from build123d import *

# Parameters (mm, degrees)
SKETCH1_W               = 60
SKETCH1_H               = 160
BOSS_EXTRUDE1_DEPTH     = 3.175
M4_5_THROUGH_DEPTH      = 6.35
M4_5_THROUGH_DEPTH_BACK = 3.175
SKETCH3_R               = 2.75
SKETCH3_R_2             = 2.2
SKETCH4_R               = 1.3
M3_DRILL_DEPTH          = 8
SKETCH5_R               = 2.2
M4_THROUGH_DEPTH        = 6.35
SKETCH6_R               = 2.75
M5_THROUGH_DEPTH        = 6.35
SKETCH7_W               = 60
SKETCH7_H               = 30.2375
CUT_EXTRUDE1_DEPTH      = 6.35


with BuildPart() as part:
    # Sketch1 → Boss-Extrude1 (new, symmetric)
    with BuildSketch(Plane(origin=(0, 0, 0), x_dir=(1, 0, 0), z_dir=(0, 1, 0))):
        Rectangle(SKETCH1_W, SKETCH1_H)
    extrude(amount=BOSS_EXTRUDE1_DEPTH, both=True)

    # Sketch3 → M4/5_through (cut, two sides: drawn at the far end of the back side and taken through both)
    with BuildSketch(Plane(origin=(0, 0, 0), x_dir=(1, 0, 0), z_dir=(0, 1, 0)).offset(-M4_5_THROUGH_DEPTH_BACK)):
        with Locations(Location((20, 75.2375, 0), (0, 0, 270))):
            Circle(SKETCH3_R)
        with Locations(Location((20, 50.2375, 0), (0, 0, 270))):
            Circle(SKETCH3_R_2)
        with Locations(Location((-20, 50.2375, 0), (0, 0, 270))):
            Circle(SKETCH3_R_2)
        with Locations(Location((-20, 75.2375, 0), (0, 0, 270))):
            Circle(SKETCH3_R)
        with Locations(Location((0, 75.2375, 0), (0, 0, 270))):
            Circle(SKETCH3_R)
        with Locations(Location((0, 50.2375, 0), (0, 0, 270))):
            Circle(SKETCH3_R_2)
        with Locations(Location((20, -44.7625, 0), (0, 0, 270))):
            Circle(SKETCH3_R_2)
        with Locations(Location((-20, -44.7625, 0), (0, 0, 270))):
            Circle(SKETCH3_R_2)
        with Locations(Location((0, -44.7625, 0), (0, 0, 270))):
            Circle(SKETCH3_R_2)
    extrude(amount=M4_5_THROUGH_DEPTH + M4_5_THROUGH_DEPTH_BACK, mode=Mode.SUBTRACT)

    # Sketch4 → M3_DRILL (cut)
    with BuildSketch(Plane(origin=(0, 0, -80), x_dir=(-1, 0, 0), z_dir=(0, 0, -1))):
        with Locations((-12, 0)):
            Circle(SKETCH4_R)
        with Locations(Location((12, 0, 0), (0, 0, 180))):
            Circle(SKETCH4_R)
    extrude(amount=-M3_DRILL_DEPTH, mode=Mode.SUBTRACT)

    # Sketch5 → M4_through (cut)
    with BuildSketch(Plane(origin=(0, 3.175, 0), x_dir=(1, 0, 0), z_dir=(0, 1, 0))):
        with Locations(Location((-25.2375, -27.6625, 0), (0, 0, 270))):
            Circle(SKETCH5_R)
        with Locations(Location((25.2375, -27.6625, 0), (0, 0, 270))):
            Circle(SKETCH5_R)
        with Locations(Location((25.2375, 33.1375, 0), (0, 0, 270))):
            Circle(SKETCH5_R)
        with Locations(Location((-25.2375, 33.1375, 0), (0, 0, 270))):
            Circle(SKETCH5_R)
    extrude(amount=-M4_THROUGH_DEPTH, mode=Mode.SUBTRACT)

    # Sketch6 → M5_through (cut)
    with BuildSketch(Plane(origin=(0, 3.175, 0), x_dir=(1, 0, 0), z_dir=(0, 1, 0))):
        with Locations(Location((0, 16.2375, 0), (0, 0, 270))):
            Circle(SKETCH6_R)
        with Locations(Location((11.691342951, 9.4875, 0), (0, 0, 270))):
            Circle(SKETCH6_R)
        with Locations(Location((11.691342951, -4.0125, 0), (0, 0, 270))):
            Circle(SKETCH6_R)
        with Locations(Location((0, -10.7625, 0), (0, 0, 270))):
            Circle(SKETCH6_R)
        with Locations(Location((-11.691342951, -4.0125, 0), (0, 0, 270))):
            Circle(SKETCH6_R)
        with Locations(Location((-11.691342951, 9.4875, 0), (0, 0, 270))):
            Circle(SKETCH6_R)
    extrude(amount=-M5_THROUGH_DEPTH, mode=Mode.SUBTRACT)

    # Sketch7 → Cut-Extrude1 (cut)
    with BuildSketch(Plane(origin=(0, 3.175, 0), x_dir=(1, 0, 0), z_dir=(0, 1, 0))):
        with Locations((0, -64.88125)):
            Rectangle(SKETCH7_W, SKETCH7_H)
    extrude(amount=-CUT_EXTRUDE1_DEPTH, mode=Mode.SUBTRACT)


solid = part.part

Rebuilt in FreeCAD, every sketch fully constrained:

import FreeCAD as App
import Part
import Sketcher
from FreeCAD import Vector
Q = App.Units.Quantity


def add_polygon(sketch, points):
    """Adds a closed chain of lines whose ends are joined by coincident constraints."""
    first, n = sketch.GeometryCount, len(points)
    for a, b in zip(points, points[1:] + points[:1]):
        sketch.addGeometry(Part.LineSegment(App.Vector(*a, 0), App.Vector(*b, 0)), False)
    for i in range(n):
        sketch.addConstraint(Sketcher.Constraint("Coincident", first + i, 2, first + (i + 1) % n, 1))

doc = App.newDocument("Part")
body = doc.addObject("PartDesign::Body", "Body")

# Sketch on XZ plane
sketch1 = body.newObject("Sketcher::SketchObject", "Sketch")
sketch1.AttachmentSupport = (doc.getObject("XZ_Plane"), [""])
sketch1.MapMode = "FlatFace"
add_polygon(sketch1, [(-30, -80), (-30, 80), (30, 80), (30, -80)])  # lines 0-3
sketch1.addConstraint([
    Sketcher.Constraint("Vertical", 0),
    Sketcher.Constraint("Horizontal", 1),
    Sketcher.Constraint("Vertical", 2),
    Sketcher.Constraint("Horizontal", 3),
    Sketcher.Constraint("Symmetric", 0, 2, 2, 2, -1, 1),
    Sketcher.Constraint("DistanceX", 1, 1, 1, 2, Q("60 mm")),
    Sketcher.Constraint("DistanceY", 0, 1, 0, 2, Q("160 mm")),
])
pad1 = body.newObject("PartDesign::Pad", "Pad")
pad1.Profile = sketch1
pad1.Length = 6.35
pad1.Midplane = True

# Sketch on XZ plane
sketch2 = body.newObject("Sketcher::SketchObject", "Sketch001")
sketch2.AttachmentSupport = (doc.getObject("XZ_Plane"), [""])
sketch2.MapMode = "FlatFace"
sketch2.addGeometry([
    Part.Circle(Vector(20, -75.2, 0), Vector(0, 0, 1), 2.8),  # 0
    Part.Circle(Vector(20, -50.2, 0), Vector(0, 0, 1), 2.2),  # 1
    Part.Circle(Vector(-20, -50.2, 0), Vector(0, 0, 1), 2.2),  # 2
    Part.Circle(Vector(-20, -75.2, 0), Vector(0, 0, 1), 2.8),  # 3
    Part.Circle(Vector(0, -75.2, 0), Vector(0, 0, 1), 2.8),  # 4
    Part.Circle(Vector(0, -50.2, 0), Vector(0, 0, 1), 2.2),  # 5
    Part.Circle(Vector(20, 44.8, 0), Vector(0, 0, 1), 2.2),  # 6
    Part.Circle(Vector(-20, 44.8, 0), Vector(0, 0, 1), 2.2),  # 7
    Part.Circle(Vector(0, 44.8, 0), Vector(0, 0, 1), 2.2),  # 8
], False)
sketch2.addConstraint([
    Sketcher.Constraint("Equal", 1, 2),
    Sketcher.Constraint("Equal", 0, 3),
    Sketcher.Constraint("Equal", 3, 4),
    Sketcher.Constraint("Equal", 2, 5),
    Sketcher.Constraint("Equal", 5, 6),
    Sketcher.Constraint("Equal", 6, 7),
    Sketcher.Constraint("Equal", 7, 8),
    Sketcher.Constraint("Symmetric", 1, 3, 2, 3, -2),
    Sketcher.Constraint("Symmetric", 0, 3, 3, 3, -2),
    Sketcher.Constraint("Symmetric", 6, 3, 7, 3, -2),
    Sketcher.Constraint("PointOnObject", 4, 3, -2),
    Sketcher.Constraint("PointOnObject", 5, 3, -2),
    Sketcher.Constraint("PointOnObject", 8, 3, -2),
    Sketcher.Constraint("Horizontal", 3, 3, 4, 3),
    Sketcher.Constraint("Horizontal", 2, 3, 5, 3),
    Sketcher.Constraint("Horizontal", 7, 3, 8, 3),
    Sketcher.Constraint("Vertical", 0, 3, 1, 3),
    Sketcher.Constraint("Vertical", 1, 3, 6, 3),
    Sketcher.Constraint("Diameter", 0, Q("5.5 mm")),
    Sketcher.Constraint("Diameter", 1, Q("4.4 mm")),
    Sketcher.Constraint("DistanceX", -1, 1, 0, 3, Q("20 mm")),
    Sketcher.Constraint("DistanceY", 0, 3, 1, 3, Q("25 mm")),
    Sketcher.Constraint("DistanceY", 1, 3, 6, 3, Q("95 mm")),
    Sketcher.Constraint("DistanceY", 0, 3, -1, 1, Q("75.2375 mm")),
])
pocket1 = body.newObject("PartDesign::Pocket", "Pocket")
pocket1.Profile = sketch2
pocket1.Type = "ThroughAll"
pocket1.Midplane = True

# Sketch on XY plane
sketch3 = body.newObject("Sketcher::SketchObject", "Sketch002")
sketch3.AttachmentSupport = (doc.getObject("XY_Plane"), [""])
sketch3.MapMode = "FlatFace"
sketch3.AttachmentOffset = App.Placement(Vector(0, 0, -80), App.Rotation())
sketch3.addGeometry([
    Part.Circle(Vector(12, 0, 0), Vector(0, 0, 1), 1.3),
    Part.Circle(Vector(-12, 0, 0), Vector(0, 0, 1), 1.3),
], False)
sketch3.addConstraint([
    Sketcher.Constraint("Equal", 0, 1),
    Sketcher.Constraint("Symmetric", 0, 3, 1, 3, -1, 1),
    Sketcher.Constraint("PointOnObject", 0, 3, -1),
    Sketcher.Constraint("Diameter", 0, Q("2.6 mm")),
    Sketcher.Constraint("DistanceX", -1, 1, 0, 3, Q("12 mm")),
])
pocket2 = body.newObject("PartDesign::Pocket", "Pocket001")
pocket2.Profile = sketch3
pocket2.Length = 8
pocket2.Reversed = True

# Sketch on XZ plane
sketch4 = body.newObject("Sketcher::SketchObject", "Sketch003")
sketch4.AttachmentSupport = (doc.getObject("XZ_Plane"), [""])
sketch4.MapMode = "FlatFace"
sketch4.AttachmentOffset = App.Placement(Vector(0, 0, -3.175), App.Rotation())
sketch4.addGeometry([
    Part.Circle(Vector(-25.2, 27.7, 0), Vector(0, 0, 1), 2.2),
    Part.Circle(Vector(25.2, 27.7, 0), Vector(0, 0, 1), 2.2),
    Part.Circle(Vector(25.2, -33.1, 0), Vector(0, 0, 1), 2.2),
    Part.Circle(Vector(-25.2, -33.1, 0), Vector(0, 0, 1), 2.2),
], False)
sketch4.addConstraint([
    Sketcher.Constraint("Equal", 0, 1),
    Sketcher.Constraint("Equal", 1, 2),
    Sketcher.Constraint("Equal", 2, 3),
    Sketcher.Constraint("Symmetric", 0, 3, 1, 3, -2),
    Sketcher.Constraint("Symmetric", 2, 3, 3, 3, -2),
    Sketcher.Constraint("Vertical", 1, 3, 2, 3),
    Sketcher.Constraint("Diameter", 0, Q("4.4 mm")),
    Sketcher.Constraint("DistanceY", 2, 3, 1, 3, Q("60.8 mm")),
    Sketcher.Constraint("DistanceX", 0, 3, 1, 3, Q("50.475 mm")),
    Sketcher.Constraint("DistanceY", -1, 1, 0, 3, Q("27.6625 mm")),
])
pocket3 = body.newObject("PartDesign::Pocket", "Pocket002")
pocket3.Profile = sketch4
pocket3.Length = 6.35
pocket3.Reversed = True

# Sketch on XZ plane
sketch5 = body.newObject("Sketcher::SketchObject", "Sketch004")
sketch5.AttachmentSupport = (doc.getObject("XZ_Plane"), [""])
sketch5.MapMode = "FlatFace"
sketch5.AttachmentOffset = App.Placement(Vector(0, 0, -3.175), App.Rotation())
sketch5.addGeometry([
    Part.Circle(Vector(0, -16.2, 0), Vector(0, 0, 1), 2.8),  # 0
    Part.Circle(Vector(11.7, -9.5, 0), Vector(0, 0, 1), 2.8),  # 1
    Part.Circle(Vector(11.7, 4, 0), Vector(0, 0, 1), 2.8),  # 2
    Part.Circle(Vector(0, 10.8, 0), Vector(0, 0, 1), 2.8),  # 3
    Part.Circle(Vector(-11.7, 4, 0), Vector(0, 0, 1), 2.8),  # 4
    Part.Circle(Vector(-11.7, -9.5, 0), Vector(0, 0, 1), 2.8),  # 5
], False)
sketch5.addConstraint([
    Sketcher.Constraint("Equal", 0, 1),
    Sketcher.Constraint("Equal", 1, 2),
    Sketcher.Constraint("Equal", 2, 3),
    Sketcher.Constraint("Equal", 3, 4),
    Sketcher.Constraint("Equal", 4, 5),
    Sketcher.Constraint("Symmetric", 2, 3, 4, 3, -2),
    Sketcher.Constraint("Symmetric", 1, 3, 5, 3, -2),
    Sketcher.Constraint("PointOnObject", 0, 3, -2),
    Sketcher.Constraint("PointOnObject", 3, 3, -2),
    Sketcher.Constraint("Vertical", 1, 3, 2, 3),
    Sketcher.Constraint("Diameter", 0, Q("5.5 mm")),
    Sketcher.Constraint("DistanceY", 0, 3, 3, 3, Q("27 mm")),
    Sketcher.Constraint("DistanceY", 1, 3, 2, 3, Q("13.5 mm")),
    Sketcher.Constraint("DistanceY", 0, 3, 1, 3, Q("6.75 mm")),
    Sketcher.Constraint("DistanceY", 0, 3, -1, 1, Q("16.2375 mm")),
    Sketcher.Constraint("DistanceX", -1, 1, 1, 3, Q("11.691343 mm")),
])
pocket4 = body.newObject("PartDesign::Pocket", "Pocket003")
pocket4.Profile = sketch5
pocket4.Length = 6.35
pocket4.Reversed = True

# Sketch on XZ plane
sketch6 = body.newObject("Sketcher::SketchObject", "Sketch005")
sketch6.AttachmentSupport = (doc.getObject("XZ_Plane"), [""])
sketch6.MapMode = "FlatFace"
sketch6.AttachmentOffset = App.Placement(Vector(0, 0, -3.175), App.Rotation())
add_polygon(sketch6, [(-30, 50), (-30, 80), (30, 80), (30, 50)])  # lines 0-3
sketch6.addConstraint([
    Sketcher.Constraint("Vertical", 0),
    Sketcher.Constraint("Horizontal", 1),
    Sketcher.Constraint("Vertical", 2),
    Sketcher.Constraint("Horizontal", 3),
    Sketcher.Constraint("DistanceX", 1, 1, 1, 2, Q("60 mm")),
    Sketcher.Constraint("DistanceX", 0, 2, -1, 1, Q("30 mm")),
    Sketcher.Constraint("DistanceY", -1, 1, 0, 2, Q("80 mm")),
    Sketcher.Constraint("DistanceY", 0, 1, 0, 2, Q("30.2375 mm")),
])
pocket5 = body.newObject("PartDesign::Pocket", "Pocket004")
pocket5.Profile = sketch6
pocket5.Length = 6.35
pocket5.Reversed = True

doc.recompute()
